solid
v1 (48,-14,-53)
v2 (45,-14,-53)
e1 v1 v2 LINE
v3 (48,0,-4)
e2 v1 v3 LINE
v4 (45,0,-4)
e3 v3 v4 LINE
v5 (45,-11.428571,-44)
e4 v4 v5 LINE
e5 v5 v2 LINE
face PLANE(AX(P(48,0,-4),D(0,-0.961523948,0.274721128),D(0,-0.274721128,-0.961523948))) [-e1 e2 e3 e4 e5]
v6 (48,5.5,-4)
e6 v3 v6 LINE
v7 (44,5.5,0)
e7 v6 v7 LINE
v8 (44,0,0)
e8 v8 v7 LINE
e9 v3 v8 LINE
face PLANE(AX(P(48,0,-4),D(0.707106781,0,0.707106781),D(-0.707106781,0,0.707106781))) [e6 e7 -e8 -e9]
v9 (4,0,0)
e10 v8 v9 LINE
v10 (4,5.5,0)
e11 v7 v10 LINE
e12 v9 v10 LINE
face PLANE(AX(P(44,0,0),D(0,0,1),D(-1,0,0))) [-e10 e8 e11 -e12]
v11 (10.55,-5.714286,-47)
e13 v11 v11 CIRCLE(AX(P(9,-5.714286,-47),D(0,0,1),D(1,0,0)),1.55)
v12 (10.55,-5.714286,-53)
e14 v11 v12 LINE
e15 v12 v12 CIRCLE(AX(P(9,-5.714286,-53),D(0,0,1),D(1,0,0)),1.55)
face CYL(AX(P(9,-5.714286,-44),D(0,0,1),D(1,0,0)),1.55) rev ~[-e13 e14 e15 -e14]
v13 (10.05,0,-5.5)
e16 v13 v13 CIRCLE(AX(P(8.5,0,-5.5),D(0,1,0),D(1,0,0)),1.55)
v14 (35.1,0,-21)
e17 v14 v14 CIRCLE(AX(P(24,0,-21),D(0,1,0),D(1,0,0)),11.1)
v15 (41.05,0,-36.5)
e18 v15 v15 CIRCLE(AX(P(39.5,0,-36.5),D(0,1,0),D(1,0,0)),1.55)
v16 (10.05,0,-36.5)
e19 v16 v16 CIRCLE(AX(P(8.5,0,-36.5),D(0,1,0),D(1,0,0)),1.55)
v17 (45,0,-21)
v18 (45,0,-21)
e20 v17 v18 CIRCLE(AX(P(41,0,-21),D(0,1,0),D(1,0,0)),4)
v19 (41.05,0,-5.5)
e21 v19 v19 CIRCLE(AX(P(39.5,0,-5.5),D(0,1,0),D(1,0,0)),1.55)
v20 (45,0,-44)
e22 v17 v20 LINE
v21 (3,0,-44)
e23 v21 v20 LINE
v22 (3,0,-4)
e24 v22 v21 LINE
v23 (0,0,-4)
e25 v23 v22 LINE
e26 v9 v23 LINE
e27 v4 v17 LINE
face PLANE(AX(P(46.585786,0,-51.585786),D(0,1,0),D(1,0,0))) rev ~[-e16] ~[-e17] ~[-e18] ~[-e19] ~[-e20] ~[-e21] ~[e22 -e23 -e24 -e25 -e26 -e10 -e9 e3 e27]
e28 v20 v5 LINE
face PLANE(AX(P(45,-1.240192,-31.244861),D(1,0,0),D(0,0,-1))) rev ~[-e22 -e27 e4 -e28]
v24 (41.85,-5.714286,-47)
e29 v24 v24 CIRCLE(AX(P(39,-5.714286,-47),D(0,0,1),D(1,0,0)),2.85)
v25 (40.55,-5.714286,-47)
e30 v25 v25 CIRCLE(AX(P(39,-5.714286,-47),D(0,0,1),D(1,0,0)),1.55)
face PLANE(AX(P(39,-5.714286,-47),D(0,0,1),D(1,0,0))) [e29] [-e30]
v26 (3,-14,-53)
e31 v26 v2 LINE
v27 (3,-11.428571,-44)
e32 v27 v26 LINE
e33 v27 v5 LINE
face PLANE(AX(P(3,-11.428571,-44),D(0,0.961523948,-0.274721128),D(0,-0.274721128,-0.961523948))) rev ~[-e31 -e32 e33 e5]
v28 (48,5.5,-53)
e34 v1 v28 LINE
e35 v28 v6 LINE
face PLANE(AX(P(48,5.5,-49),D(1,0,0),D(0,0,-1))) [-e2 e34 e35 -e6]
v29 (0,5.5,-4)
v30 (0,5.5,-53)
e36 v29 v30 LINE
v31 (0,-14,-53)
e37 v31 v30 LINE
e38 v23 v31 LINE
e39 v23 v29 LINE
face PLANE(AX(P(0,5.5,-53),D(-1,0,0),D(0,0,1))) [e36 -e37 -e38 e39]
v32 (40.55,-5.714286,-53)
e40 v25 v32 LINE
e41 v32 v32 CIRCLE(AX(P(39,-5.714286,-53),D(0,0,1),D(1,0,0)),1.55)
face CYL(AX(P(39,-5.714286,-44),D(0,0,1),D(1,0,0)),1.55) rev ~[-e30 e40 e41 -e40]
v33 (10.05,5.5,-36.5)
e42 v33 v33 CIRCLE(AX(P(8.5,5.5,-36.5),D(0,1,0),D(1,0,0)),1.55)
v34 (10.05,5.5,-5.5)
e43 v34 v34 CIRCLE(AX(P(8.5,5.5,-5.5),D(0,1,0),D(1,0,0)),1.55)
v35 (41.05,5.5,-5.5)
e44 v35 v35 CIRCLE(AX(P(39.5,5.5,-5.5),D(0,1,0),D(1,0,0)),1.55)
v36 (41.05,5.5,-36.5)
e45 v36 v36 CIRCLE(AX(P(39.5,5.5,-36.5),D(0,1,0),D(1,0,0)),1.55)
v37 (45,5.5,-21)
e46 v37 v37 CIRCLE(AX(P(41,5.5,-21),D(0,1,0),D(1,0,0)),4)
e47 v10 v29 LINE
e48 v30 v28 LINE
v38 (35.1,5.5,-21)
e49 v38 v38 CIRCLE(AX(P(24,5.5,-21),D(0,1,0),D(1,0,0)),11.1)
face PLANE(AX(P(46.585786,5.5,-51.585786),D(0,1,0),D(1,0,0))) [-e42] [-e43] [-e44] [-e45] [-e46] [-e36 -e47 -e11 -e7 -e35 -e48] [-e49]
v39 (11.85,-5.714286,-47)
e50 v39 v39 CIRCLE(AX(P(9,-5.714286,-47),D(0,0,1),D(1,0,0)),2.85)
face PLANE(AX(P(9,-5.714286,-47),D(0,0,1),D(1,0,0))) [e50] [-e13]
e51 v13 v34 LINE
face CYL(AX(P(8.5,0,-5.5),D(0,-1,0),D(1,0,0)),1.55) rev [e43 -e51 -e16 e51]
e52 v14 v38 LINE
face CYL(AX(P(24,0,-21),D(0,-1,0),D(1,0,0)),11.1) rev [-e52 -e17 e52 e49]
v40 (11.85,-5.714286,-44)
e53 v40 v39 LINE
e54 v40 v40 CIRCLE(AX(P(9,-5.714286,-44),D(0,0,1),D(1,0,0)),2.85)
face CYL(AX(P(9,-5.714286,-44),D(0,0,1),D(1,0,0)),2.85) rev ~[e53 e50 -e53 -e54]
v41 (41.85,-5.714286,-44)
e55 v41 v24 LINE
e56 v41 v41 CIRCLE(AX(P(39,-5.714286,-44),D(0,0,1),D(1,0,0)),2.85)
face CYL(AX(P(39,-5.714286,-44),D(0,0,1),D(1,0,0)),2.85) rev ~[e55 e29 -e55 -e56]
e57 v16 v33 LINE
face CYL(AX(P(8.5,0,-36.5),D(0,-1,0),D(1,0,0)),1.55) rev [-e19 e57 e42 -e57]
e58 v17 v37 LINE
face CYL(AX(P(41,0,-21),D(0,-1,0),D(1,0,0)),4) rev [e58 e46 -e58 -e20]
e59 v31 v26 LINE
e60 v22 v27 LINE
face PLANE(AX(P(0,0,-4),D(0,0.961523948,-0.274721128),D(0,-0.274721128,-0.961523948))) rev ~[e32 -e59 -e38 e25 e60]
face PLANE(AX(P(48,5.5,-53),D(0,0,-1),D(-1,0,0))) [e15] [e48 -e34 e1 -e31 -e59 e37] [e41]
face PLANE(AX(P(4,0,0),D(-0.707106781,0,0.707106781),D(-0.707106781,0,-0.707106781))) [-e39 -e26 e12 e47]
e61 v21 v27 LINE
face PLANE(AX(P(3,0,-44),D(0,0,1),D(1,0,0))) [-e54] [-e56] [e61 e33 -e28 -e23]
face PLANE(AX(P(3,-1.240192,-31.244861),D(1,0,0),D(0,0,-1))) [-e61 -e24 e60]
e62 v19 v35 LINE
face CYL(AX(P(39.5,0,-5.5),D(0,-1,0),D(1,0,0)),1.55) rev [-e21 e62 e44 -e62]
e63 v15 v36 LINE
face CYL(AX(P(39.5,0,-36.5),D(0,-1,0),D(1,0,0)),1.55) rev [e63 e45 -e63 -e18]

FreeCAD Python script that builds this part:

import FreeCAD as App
import Part
import Sketcher
from FreeCAD import Vector

doc = App.newDocument("Part")
body = doc.addObject("PartDesign::Body", "Body")

# Sketch on XZ plane
sketch1 = body.newObject("Sketcher::SketchObject", "Sketch")
sketch1.AttachmentSupport = (doc.getObject("XZ_Plane"), [""])
sketch1.MapMode = "FlatFace"
sketch1.addGeometry([
    Part.LineSegment(Vector(0, -49, 0), Vector(0, -4, 0)),  # 0
    Part.LineSegment(Vector(0, -4, 0), Vector(4, 0, 0)),  # 1
    Part.LineSegment(Vector(4, 0, 0), Vector(44, 0, 0)),  # 2
    Part.LineSegment(Vector(44, 0, 0), Vector(48, -4, 0)),  # 3
    Part.LineSegment(Vector(48, -4, 0), Vector(48, -49, 0)),  # 4
    Part.LineSegment(Vector(48, -49, 0), Vector(44, -53, 0)),  # 5
    Part.LineSegment(Vector(44, -53, 0), Vector(4, -53, 0)),  # 6
    Part.LineSegment(Vector(4, -53, 0), Vector(0, -49, 0)),  # 7
    Part.Circle(Vector(39.5, -5.5, 0), Vector(0, 0, 1), 1.55),  # 8
    Part.Circle(Vector(8.5, -5.5, 0), Vector(0, 0, 1), 1.55),  # 9
    Part.Circle(Vector(41, -21, 0), Vector(0, 0, 1), 4),  # 10
    Part.Circle(Vector(39.5, -36.5, 0), Vector(0, 0, 1), 1.55),  # 11
    Part.Circle(Vector(24, -21, 0), Vector(0, 0, 1), 11.1),  # 12
    Part.Circle(Vector(8.5, -36.5, 0), Vector(0, 0, 1), 1.55),  # 13
], False)
sketch1.addConstraint([
    Sketcher.Constraint("Coincident", 0, 2, 1, 1),
    Sketcher.Constraint("Coincident", 1, 2, 2, 1),
    Sketcher.Constraint("Coincident", 2, 2, 3, 1),
    Sketcher.Constraint("Coincident", 3, 2, 4, 1),
    Sketcher.Constraint("Coincident", 4, 2, 5, 1),
    Sketcher.Constraint("Coincident", 5, 2, 6, 1),
    Sketcher.Constraint("Coincident", 6, 2, 7, 1),
    Sketcher.Constraint("Coincident", 7, 2, 0, 1),
    Sketcher.Constraint("Vertical", 0),
    Sketcher.Constraint("Horizontal", 2),
    Sketcher.Constraint("Vertical", 4),
    Sketcher.Constraint("Horizontal", 6),
    Sketcher.Constraint("Equal", 8, 9),
    Sketcher.Constraint("Equal", 9, 11),
    Sketcher.Constraint("Equal", 11, 13),
    Sketcher.Constraint("PointOnObject", 0, 2, -2),
    Sketcher.Constraint("PointOnObject", 1, 2, -1),
    Sketcher.Constraint("Perpendicular", 1, 3),
    Sketcher.Constraint("Perpendicular", 3, 5),
    Sketcher.Constraint("Perpendicular", 5, 7),
    Sketcher.Constraint("Horizontal", 8, 3, 9, 3),
    Sketcher.Constraint("Horizontal", 10, 3, 12, 3),
    Sketcher.Constraint("Horizontal", 11, 3, 13, 3),
    Sketcher.Constraint("Horizontal", 0, 2, 3, 2),
    Sketcher.Constraint("Horizontal", 4, 2, 7, 2),
    Sketcher.Constraint("Vertical", 8, 3, 11, 3),
    Sketcher.Constraint("Vertical", 9, 3, 13, 3),
    Sketcher.Constraint("Vertical", 2, 2, 5, 2),
    Sketcher.Constraint("Vertical", 1, 2, 6, 2),
    Sketcher.Constraint("Diameter", 10, 8.0),
    Sketcher.Constraint("Diameter", 8, 3.1),
    Sketcher.Constraint("Diameter", 12, 22.2),
    Sketcher.Constraint("DistanceX", 2, 1, 2, 2, 40.0),
    Sketcher.Constraint("DistanceY", 0, 1, 0, 2, 45.0),
    Sketcher.Constraint("DistanceX", -1, 1, 10, 3, 41.0),
    Sketcher.Constraint("DistanceY", 10, 3, -1, 1, 21.0),
    Sketcher.Constraint("DistanceX", -1, 1, 12, 3, 24.0),
    Sketcher.Constraint("DistanceY", 0, 2, -1, 1, 4.0),
    Sketcher.Constraint("DistanceX", 9, 3, 8, 3, 31.0),
    Sketcher.Constraint("DistanceY", 11, 3, 8, 3, 31.0),
    Sketcher.Constraint("DistanceX", -1, 1, 8, 3, 39.5),
    Sketcher.Constraint("DistanceY", 8, 3, -1, 1, 5.5),
])
pad1 = body.newObject("PartDesign::Pad", "Pad")
pad1.Profile = sketch1
pad1.Length = 5.5
pad1.Reversed = True

# Sketch on XZ plane
sketch2 = body.newObject("Sketcher::SketchObject", "Sketch001")
sketch2.AttachmentSupport = (doc.getObject("XZ_Plane"), [""])
sketch2.MapMode = "FlatFace"
sketch2.AttachmentOffset = App.Placement(Vector(0, 0, -5.5), App.Rotation())
sketch2.addGeometry([
    Part.LineSegment(Vector(4, -53, 0), Vector(0, -53, 0)),
    Part.LineSegment(Vector(0, -53, 0), Vector(0, -49, 0)),
    Part.LineSegment(Vector(0, -49, 0), Vector(4, -53, 0)),
], False)
sketch2.addConstraint([
    Sketcher.Constraint("Coincident", 0, 2, 1, 1),
    Sketcher.Constraint("Coincident", 1, 2, 2, 1),
    Sketcher.Constraint("Coincident", 2, 2, 0, 1),
    Sketcher.Constraint("Horizontal", 0),
    Sketcher.Constraint("Vertical", 1),
    Sketcher.Constraint("PointOnObject", 0, 2, -2),
    Sketcher.Constraint("Equal", 0, 1),
    Sketcher.Constraint("DistanceX", 0, 2, 0, 1, 4.0),
    Sketcher.Constraint("DistanceY", 0, 2, -1, 1, 53.0),
])
pad2 = body.newObject("PartDesign::Pad", "Pad001")
pad2.Profile = sketch2
pad2.Length = 5.5

# Sketch on YZ plane
sketch3 = body.newObject("Sketcher::SketchObject", "Sketch002")
sketch3.AttachmentSupport = (doc.getObject("YZ_Plane"), [""])
sketch3.MapMode = "FlatFace"
sketch3.addGeometry([
    Part.LineSegment(Vector(5.5, -53, 0), Vector(-14, -53, 0)),
    Part.LineSegment(Vector(-14, -53, 0), Vector(0, -4, 0)),
    Part.LineSegment(Vector(0, -4, 0), Vector(5.5, -4, 0)),
    Part.LineSegment(Vector(5.5, -4, 0), Vector(5.5, -53, 0)),
], False)
sketch3.addConstraint([
    Sketcher.Constraint("Coincident", 0, 2, 1, 1),
    Sketcher.Constraint("Coincident", 1, 2, 2, 1),
    Sketcher.Constraint("Coincident", 2, 2, 3, 1),
    Sketcher.Constraint("Coincident", 3, 2, 0, 1),
    Sketcher.Constraint("Horizontal", 0),
    Sketcher.Constraint("Horizontal", 2),
    Sketcher.Constraint("Vertical", 3),
    Sketcher.Constraint("PointOnObject", 1, 2, -2),
    Sketcher.Constraint("DistanceY", 3, 2, 3, 1, 49.0),
    Sketcher.Constraint("DistanceX", 0, 2, 0, 1, 19.5),
    Sketcher.Constraint("DistanceX", 2, 1, 2, 2, 5.5),
    Sketcher.Constraint("DistanceY", 0, 2, -1, 1, 53.0),
])
pad3 = body.newObject("PartDesign::Pad", "Pad002")
pad3.Profile = sketch3
pad3.Length = 3

# Sketch on XZ plane
sketch4 = body.newObject("Sketcher::SketchObject", "Sketch003")
sketch4.AttachmentSupport = (doc.getObject("XZ_Plane"), [""])
sketch4.MapMode = "FlatFace"
sketch4.AttachmentOffset = App.Placement(Vector(0, 0, -5.5), App.Rotation())
sketch4.addGeometry([
    Part.LineSegment(Vector(48, -49, 0), Vector(48, -53, 0)),
    Part.LineSegment(Vector(48, -53, 0), Vector(44, -53, 0)),
    Part.LineSegment(Vector(44, -53, 0), Vector(48, -49, 0)),
], False)
sketch4.addConstraint([
    Sketcher.Constraint("Coincident", 0, 2, 1, 1),
    Sketcher.Constraint("Coincident", 1, 2, 2, 1),
    Sketcher.Constraint("Coincident", 2, 2, 0, 1),
    Sketcher.Constraint("Vertical", 0),
    Sketcher.Constraint("Horizontal", 1),
    Sketcher.Constraint("Equal", 1, 0),
    Sketcher.Constraint("DistanceX", 1, 2, 1, 1, 4.0),
    Sketcher.Constraint("DistanceX", -1, 1, 0, 2, 48.0),
    Sketcher.Constraint("DistanceY", 0, 2, -1, 1, 53.0),
])
pad4 = body.newObject("PartDesign::Pad", "Pad003")
pad4.Profile = sketch4
pad4.Length = 5.5

# Sketch on YZ plane
sketch5 = body.newObject("Sketcher::SketchObject", "Sketch004")
sketch5.AttachmentSupport = (doc.getObject("YZ_Plane"), [""])
sketch5.MapMode = "FlatFace"
sketch5.AttachmentOffset = App.Placement(Vector(0, 0, 48), App.Rotation())
sketch5.addGeometry([
    Part.LineSegment(Vector(5.5, -4, 0), Vector(0, -4, 0)),
    Part.LineSegment(Vector(0, -4, 0), Vector(-14, -53, 0)),
    Part.LineSegment(Vector(-14, -53, 0), Vector(5.5, -53, 0)),
    Part.LineSegment(Vector(5.5, -53, 0), Vector(5.5, -4, 0)),
], False)
sketch5.addConstraint([
    Sketcher.Constraint("Coincident", 0, 2, 1, 1),
    Sketcher.Constraint("Coincident", 1, 2, 2, 1),
    Sketcher.Constraint("Coincident", 2, 2, 3, 1),
    Sketcher.Constraint("Coincident", 3, 2, 0, 1),
    Sketcher.Constraint("Horizontal", 0),
    Sketcher.Constraint("Horizontal", 2),
    Sketcher.Constraint("Vertical", 3),
    Sketcher.Constraint("PointOnObject", 0, 2, -2),
    Sketcher.Constraint("DistanceY", 3, 1, 3, 2, 49.0),
    Sketcher.Constraint("DistanceX", 0, 2, 0, 1, 5.5),
    Sketcher.Constraint("DistanceX", 2, 1, 2, 2, 19.5),
    Sketcher.Constraint("DistanceY", 0, 2, -1, 1, 4.0),
])
pad5 = body.newObject("PartDesign::Pad", "Pad004")
pad5.Profile = sketch5
pad5.Length = 3
pad5.Reversed = True

# Sketch on XZ plane
sketch6 = body.newObject("Sketcher::SketchObject", "Sketch005")
sketch6.AttachmentSupport = (doc.getObject("XZ_Plane"), [""])
sketch6.MapMode = "FlatFace"
sketch6.addGeometry([
    Part.LineSegment(Vector(3, -44, 0), Vector(3, -53, 0)),
    Part.LineSegment(Vector(3, -53, 0), Vector(45, -53, 0)),
    Part.LineSegment(Vector(45, -53, 0), Vector(45, -44, 0)),
    Part.LineSegment(Vector(45, -44, 0), Vector(3, -44, 0)),
], False)
sketch6.addConstraint([
    Sketcher.Constraint("Coincident", 0, 2, 1, 1),
    Sketcher.Constraint("Coincident", 1, 2, 2, 1),
    Sketcher.Constraint("Coincident", 2, 2, 3, 1),
    Sketcher.Constraint("Coincident", 3, 2, 0, 1),
    Sketcher.Constraint("Vertical", 0),
    Sketcher.Constraint("Horizontal", 1),
    Sketcher.Constraint("Vertical", 2),
    Sketcher.Constraint("Horizontal", 3),
    Sketcher.Constraint("DistanceX", 1, 1, 1, 2, 42.0),
    Sketcher.Constraint("DistanceY", 0, 2, 0, 1, 9.0),
    Sketcher.Constraint("DistanceX", -1, 1, 0, 2, 3.0),
    Sketcher.Constraint("DistanceY", 0, 2, -1, 1, 53.0),
])
pad6 = body.newObject("PartDesign::Pad", "Pad005")
pad6.Profile = sketch6
pad6.Length = 14

# Sketch on XY plane
sketch7 = body.newObject("Sketcher::SketchObject", "Sketch006")
sketch7.AttachmentSupport = (doc.getObject("XY_Plane"), [""])
sketch7.MapMode = "FlatFace"
sketch7.AttachmentOffset = App.Placement(Vector(0, 0, -44), App.Rotation())
sketch7.addGeometry([
    Part.Circle(Vector(9, -5.714286, 0), Vector(0, 0, 1), 1.55),
    Part.Circle(Vector(39, -5.714286, 0), Vector(0, 0, 1), 1.55),
], False)
sketch7.addConstraint([
    Sketcher.Constraint("Equal", 0, 1),
    Sketcher.Constraint("Horizontal", 0, 3, 1, 3),
    Sketcher.Constraint("Diameter", 0, 3.1),
    Sketcher.Constraint("DistanceX", -1, 1, 0, 3, 9.0),
    Sketcher.Constraint("DistanceX", -1, 1, 1, 3, 39.0),
    Sketcher.Constraint("DistanceY", 0, 3, -1, 1, 5.714286),
])
pocket1 = body.newObject("PartDesign::Pocket", "Pocket")
pocket1.Profile = sketch7
pocket1.Length = 9

# Sketch on XY plane
sketch8 = body.newObject("Sketcher::SketchObject", "Sketch007")
sketch8.AttachmentSupport = (doc.getObject("XY_Plane"), [""])
sketch8.MapMode = "FlatFace"
sketch8.AttachmentOffset = App.Placement(Vector(0, 0, -44), App.Rotation())
sketch8.addGeometry([
    Part.Circle(Vector(9, -5.714286, 0), Vector(0, 0, 1), 2.85),
    Part.Circle(Vector(9, -5.714286, 0), Vector(0, 0, 1), 1.55),
    Part.Circle(Vector(39, -5.714286, 0), Vector(0, 0, 1), 2.85),
    Part.Circle(Vector(39, -5.714286, 0), Vector(0, 0, 1), 1.55),
], False)
sketch8.addConstraint([
    Sketcher.Constraint("Coincident", 1, 3, 0, 3),
    Sketcher.Constraint("Coincident", 3, 3, 2, 3),
    Sketcher.Constraint("Equal", 0, 2),
    Sketcher.Constraint("Equal", 1, 3),
    Sketcher.Constraint("Horizontal", 1, 3, 2, 3),
    Sketcher.Constraint("Diameter", 0, 5.7),
    Sketcher.Constraint("Diameter", 1, 3.1),
    Sketcher.Constraint("DistanceX", -1, 1, 0, 3, 9.0),
    Sketcher.Constraint("DistanceX", -1, 1, 2, 3, 39.0),
    Sketcher.Constraint("DistanceY", 0, 3, -1, 1, 5.714286),
])
pocket2 = body.newObject("PartDesign::Pocket", "Pocket001")
pocket2.Profile = sketch8
pocket2.Length = 3

# Sketch on YZ plane
sketch9 = body.newObject("Sketcher::SketchObject", "Sketch008")
sketch9.AttachmentSupport = (doc.getObject("YZ_Plane"), [""])
sketch9.MapMode = "FlatFace"
sketch9.AttachmentOffset = App.Placement(Vector(0, 0, 3), App.Rotation())
sketch9.addGeometry([
    Part.LineSegment(Vector(-11.428571, -44, 0), Vector(-14, -53, 0)),
    Part.LineSegment(Vector(-14, -53, 0), Vector(-14, -44, 0)),
    Part.LineSegment(Vector(-14, -44, 0), Vector(-11.428571, -44, 0)),
], False)
sketch9.addConstraint([
    Sketcher.Constraint("Coincident", 0, 2, 1, 1),
    Sketcher.Constraint("Coincident", 1, 2, 2, 1),
    Sketcher.Constraint("Coincident", 2, 2, 0, 1),
    Sketcher.Constraint("Vertical", 1),
    Sketcher.Constraint("Horizontal", 2),
    Sketcher.Constraint("DistanceY", 1, 1, 1, 2, 9.0),
    Sketcher.Constraint("DistanceX", 0, 2, -1, 1, 14.0),
    Sketcher.Constraint("DistanceY", 0, 2, -1, 1, 53.0),
    Sketcher.Constraint("DistanceX", 2, 1, 2, 2, 2.571429),
])
pocket3 = body.newObject("PartDesign::Pocket", "Pocket002")
pocket3.Profile = sketch9
pocket3.Type = "ThroughAll"
pocket3.Midplane = True

doc.recompute()
